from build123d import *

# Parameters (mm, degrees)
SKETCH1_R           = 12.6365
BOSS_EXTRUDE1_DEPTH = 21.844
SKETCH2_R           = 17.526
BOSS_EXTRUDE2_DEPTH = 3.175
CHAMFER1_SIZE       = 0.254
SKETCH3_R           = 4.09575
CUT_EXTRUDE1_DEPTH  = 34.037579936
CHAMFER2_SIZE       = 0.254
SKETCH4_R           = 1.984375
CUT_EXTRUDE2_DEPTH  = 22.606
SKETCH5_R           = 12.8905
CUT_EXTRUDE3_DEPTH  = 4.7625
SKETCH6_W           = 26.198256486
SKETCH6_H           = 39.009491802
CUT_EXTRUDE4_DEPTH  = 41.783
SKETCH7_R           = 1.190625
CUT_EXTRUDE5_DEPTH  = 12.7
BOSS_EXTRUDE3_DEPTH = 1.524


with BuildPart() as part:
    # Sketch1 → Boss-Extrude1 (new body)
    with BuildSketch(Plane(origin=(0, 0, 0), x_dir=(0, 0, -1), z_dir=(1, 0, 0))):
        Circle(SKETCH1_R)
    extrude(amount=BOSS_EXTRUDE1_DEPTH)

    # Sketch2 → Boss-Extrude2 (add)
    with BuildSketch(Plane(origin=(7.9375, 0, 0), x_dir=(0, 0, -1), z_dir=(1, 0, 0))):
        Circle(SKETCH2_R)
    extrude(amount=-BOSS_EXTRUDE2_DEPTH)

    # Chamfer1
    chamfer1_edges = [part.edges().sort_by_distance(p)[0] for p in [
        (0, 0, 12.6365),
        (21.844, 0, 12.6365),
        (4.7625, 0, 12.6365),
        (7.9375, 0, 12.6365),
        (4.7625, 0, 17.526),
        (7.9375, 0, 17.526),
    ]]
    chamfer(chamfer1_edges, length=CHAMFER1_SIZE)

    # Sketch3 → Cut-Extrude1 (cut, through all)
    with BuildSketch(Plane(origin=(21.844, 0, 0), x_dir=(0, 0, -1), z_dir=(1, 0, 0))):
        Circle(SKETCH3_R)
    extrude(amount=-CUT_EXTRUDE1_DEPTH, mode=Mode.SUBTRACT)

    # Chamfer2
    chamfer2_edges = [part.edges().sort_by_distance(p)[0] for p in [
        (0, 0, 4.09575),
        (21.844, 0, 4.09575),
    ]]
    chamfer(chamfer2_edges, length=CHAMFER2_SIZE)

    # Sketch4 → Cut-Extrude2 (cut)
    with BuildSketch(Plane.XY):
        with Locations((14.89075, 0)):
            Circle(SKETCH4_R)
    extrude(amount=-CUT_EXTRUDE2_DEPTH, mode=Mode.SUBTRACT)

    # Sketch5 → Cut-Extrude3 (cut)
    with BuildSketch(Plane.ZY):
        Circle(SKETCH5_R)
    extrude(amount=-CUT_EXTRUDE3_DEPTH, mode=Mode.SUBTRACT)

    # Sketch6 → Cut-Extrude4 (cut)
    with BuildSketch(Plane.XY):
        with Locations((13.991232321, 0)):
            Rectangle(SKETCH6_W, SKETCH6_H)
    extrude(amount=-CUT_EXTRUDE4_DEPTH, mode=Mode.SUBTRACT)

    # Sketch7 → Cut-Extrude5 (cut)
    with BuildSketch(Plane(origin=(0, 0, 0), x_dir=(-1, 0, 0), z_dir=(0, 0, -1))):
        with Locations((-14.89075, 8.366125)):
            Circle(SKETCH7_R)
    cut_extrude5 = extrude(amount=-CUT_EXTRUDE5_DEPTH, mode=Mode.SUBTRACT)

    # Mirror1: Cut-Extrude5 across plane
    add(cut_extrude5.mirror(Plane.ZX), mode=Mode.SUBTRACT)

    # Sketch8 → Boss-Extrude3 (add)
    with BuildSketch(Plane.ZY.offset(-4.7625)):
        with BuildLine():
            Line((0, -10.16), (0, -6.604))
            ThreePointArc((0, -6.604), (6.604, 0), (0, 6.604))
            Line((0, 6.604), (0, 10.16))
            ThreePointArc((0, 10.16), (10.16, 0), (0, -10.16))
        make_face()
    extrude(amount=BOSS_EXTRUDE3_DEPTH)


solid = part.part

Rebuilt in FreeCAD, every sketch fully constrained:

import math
import FreeCAD as App
import Part
import Sketcher

V = App.Vector
Q = App.Units.Quantity


def edges_at(feature, points):
    """Names of the edges that pass closest to the given points."""
    edges = feature.Shape.Edges
    near = lambda p: min(range(len(edges)), key=lambda i: edges[i].distToShape(Part.Vertex(*p))[0])
    return sorted({f"Edge{near(p) + 1}" for p in points})


def add_polygon(sketch, points):
    """Adds a closed chain of lines whose ends are joined by coincident constraints."""
    first, n = sketch.GeometryCount, len(points)
    for a, b in zip(points, points[1:] + points[:1]):
        sketch.addGeometry(Part.LineSegment(App.Vector(*a, 0), App.Vector(*b, 0)), False)
    for i in range(n):
        sketch.addConstraint(Sketcher.Constraint("Coincident", first + i, 2, first + (i + 1) % n, 1))

doc = App.newDocument("Part")
body = doc.addObject("PartDesign::Body", "Body")

# Sketch on YZ plane
sketch1 = doc.addObject("Sketcher::SketchObject", "Sketch")
body.addObject(sketch1)
sketch1.AttachmentSupport = (doc.YZ_Plane, [""])
sketch1.MapMode = "FlatFace"
sketch1.addGeometry(Part.Circle(V(0, 0, 0), V(0, 0, 1), 13), False)
sketch1.addConstraint(Sketcher.Constraint("Coincident", 0, 3, -1, 1))
sketch1.addConstraint(Sketcher.Constraint("Diameter", 0, Q("0.995 in")))
pad1 = doc.addObject("PartDesign::Pad", "Pad")
body.addObject(pad1)
pad1.Profile = sketch1
pad1.Length = Q("0.86 in")

# Sketch on YZ plane
sketch2 = doc.addObject("Sketcher::SketchObject", "Sketch001")
body.addObject(sketch2)
sketch2.AttachmentSupport = (doc.YZ_Plane, [""])
sketch2.MapMode = "FlatFace"
sketch2.AttachmentOffset = App.Placement(V(0, 0, 0.3125 * 25.4), App.Rotation())
sketch2.addGeometry(Part.Circle(V(0, 0, 0), V(0, 0, 1), 18), False)
sketch2.addConstraint(Sketcher.Constraint("Coincident", 0, 3, -1, 1))
sketch2.addConstraint(Sketcher.Constraint("Diameter", 0, Q("1.38 in")))
pad2 = doc.addObject("PartDesign::Pad", "Pad001")
body.addObject(pad2)
pad2.Profile = sketch2
pad2.Length = Q("0.125 in")
pad2.Reversed = True
doc.recompute()

chamfer = doc.addObject("PartDesign::Chamfer", "Chamfer")
body.addObject(chamfer)
chamfer.Base = (pad2, edges_at(pad2, [
    (0, 0, 12.636),
    (21.844, 0, 12.636),
    (4.763, 0, 12.636),
    (7.938, 0, 12.636),
    (4.763, 0, 17.526),
    (7.938, 0, 17.526),
]))
chamfer.Size = Q("0.01 in")

# Sketch on YZ plane
sketch3 = doc.addObject("Sketcher::SketchObject", "Sketch002")
body.addObject(sketch3)
sketch3.AttachmentSupport = (doc.YZ_Plane, [""])
sketch3.MapMode = "FlatFace"
sketch3.AttachmentOffset = App.Placement(V(0, 0, 0.86 * 25.4), App.Rotation())
sketch3.addGeometry(Part.Circle(V(0, 0, 0), V(0, 0, 1), 4.1), False)
sketch3.addConstraint(Sketcher.Constraint("Coincident", 0, 3, -1, 1))
sketch3.addConstraint(Sketcher.Constraint("Diameter", 0, Q("0.3225 in")))
pocket1 = doc.addObject("PartDesign::Pocket", "Pocket")
body.addObject(pocket1)
pocket1.Profile = sketch3
pocket1.Type = "ThroughAll"
doc.recompute()

chamfer2 = doc.addObject("PartDesign::Chamfer", "Chamfer001")
body.addObject(chamfer2)
chamfer2.Base = (pocket1, edges_at(pocket1, [(0, 0, 4.096), (21.844, 0, 4.096)]))
chamfer2.Size = Q("0.01 in")

# Sketch on XY plane
sketch4 = doc.addObject("Sketcher::SketchObject", "Sketch003")
body.addObject(sketch4)
sketch4.AttachmentSupport = (doc.XY_Plane, [""])
sketch4.MapMode = "FlatFace"
sketch4.addGeometry(Part.Circle(V(14.9, 0, 0), V(0, 0, 1), 2), False)
sketch4.addConstraint(Sketcher.Constraint("PointOnObject", 0, 3, -1))
sketch4.addConstraint(Sketcher.Constraint("Diameter", 0, Q("0.15625 in")))
sketch4.addConstraint(Sketcher.Constraint("DistanceX", -1, 1, 0, 3, 14.89075))
pocket2 = doc.addObject("PartDesign::Pocket", "Pocket001")
body.addObject(pocket2)
pocket2.Profile = sketch4
pocket2.Length = Q("0.89 in")

# Sketch on YZ plane
sketch5 = doc.addObject("Sketcher::SketchObject", "Sketch004")
body.addObject(sketch5)
sketch5.AttachmentSupport = (doc.YZ_Plane, [""])
sketch5.MapMode = "FlatFace"
sketch5.addGeometry(Part.Circle(V(0, 0, 0), V(0, 0, 1), 13), False)
sketch5.addConstraint(Sketcher.Constraint("Coincident", 0, 3, -1, 1))
sketch5.addConstraint(Sketcher.Constraint("Diameter", 0, Q("1.015 in")))
pocket3 = doc.addObject("PartDesign::Pocket", "Pocket002")
body.addObject(pocket3)
pocket3.Profile = sketch5
pocket3.Length = Q("0.1875 in")
pocket3.Reversed = True

# Sketch on XY plane
sketch6 = doc.addObject("Sketcher::SketchObject", "Sketch005")
body.addObject(sketch6)
sketch6.AttachmentSupport = (doc.XY_Plane, [""])
sketch6.MapMode = "FlatFace"
add_polygon(sketch6, [(1, 20), (1, -20), (27, -20), (27, 20)])  # lines 0-3
sketch6.addConstraint(Sketcher.Constraint("Vertical", 0))
sketch6.addConstraint(Sketcher.Constraint("Horizontal", 1))
sketch6.addConstraint(Sketcher.Constraint("Vertical", 2))
sketch6.addConstraint(Sketcher.Constraint("Horizontal", 3))
sketch6.addConstraint(Sketcher.Constraint("DistanceY", 0, 2, 0, 1, 39.009492))
sketch6.addConstraint(Sketcher.Constraint("DistanceX", 1, 1, 1, 2, 26.198256))
sketch6.addConstraint(Sketcher.Constraint("DistanceX", -1, 1, 1, 2, 27.090361))
sketch6.addConstraint(Sketcher.Constraint("DistanceY", 0, 2, -1, 1, 19.504746))
pocket4 = doc.addObject("PartDesign::Pocket", "Pocket003")
body.addObject(pocket4)
pocket4.Profile = sketch6
pocket4.Length = Q("1.645 in")

# Sketch on XY plane
sketch7 = doc.addObject("Sketcher::SketchObject", "Sketch006")
body.addObject(sketch7)
sketch7.AttachmentSupport = (doc.XY_Plane, [""])
sketch7.MapMode = "FlatFace"
sketch7.addGeometry(Part.Circle(V(14.9, 8.4, 0), V(0, 0, 1), 1.2), False)
sketch7.addConstraint(Sketcher.Constraint("Diameter", 0, Q("0.09375 in")))
sketch7.addConstraint(Sketcher.Constraint("DistanceX", -1, 1, 0, 3, 14.89075))
sketch7.addConstraint(Sketcher.Constraint("DistanceY", -1, 1, 0, 3, 8.366125))
pocket5 = doc.addObject("PartDesign::Pocket", "Pocket004")
body.addObject(pocket5)
pocket5.Profile = sketch7
pocket5.Length = Q("0.5 in")
pocket5.Reversed = True
doc.recompute()

mirrored = doc.addObject("PartDesign::Mirrored", "Mirrored")
body.addObject(mirrored)
mirrored.Originals = [pocket5]
mirrored.MirrorPlane = (doc.XZ_Plane, [""])
body.Tip = mirrored

# Sketch on YZ plane
sketch8 = doc.addObject("Sketcher::SketchObject", "Sketch007")
body.addObject(sketch8)
sketch8.AttachmentSupport = (doc.YZ_Plane, [""])
sketch8.MapMode = "FlatFace"
sketch8.AttachmentOffset = App.Placement(V(0, 0, 0.1875 * 25.4), App.Rotation())
sketch8.addGeometry(Part.LineSegment(V(-6.6, 0, 0), V(-10.2, 0, 0)), False)
sketch8.addGeometry(Part.ArcOfCircle(Part.Circle(V(0, 0, 0), V(0, 0, 1), 10.2), math.radians(0), math.radians(180)), False)
sketch8.addGeometry(Part.LineSegment(V(10.2, 0, 0), V(6.6, 0, 0)), False)
sketch8.addGeometry(Part.ArcOfCircle(Part.Circle(V(0, 0, 0), V(0, 0, 1), 6.6), math.radians(0), math.radians(180)), False)
sketch8.addConstraint(Sketcher.Constraint("Coincident", 0, 2, 1, 2))
sketch8.addConstraint(Sketcher.Constraint("Coincident", 1, 1, 2, 1))
sketch8.addConstraint(Sketcher.Constraint("Coincident", 2, 2, 3, 1))
sketch8.addConstraint(Sketcher.Constraint("Coincident", 3, 2, 0, 1))
sketch8.addConstraint(Sketcher.Constraint("Horizontal", 0))
sketch8.addConstraint(Sketcher.Constraint("Horizontal", 2))
sketch8.addConstraint(Sketcher.Constraint("Coincident", 1, 3, -1, 1))
sketch8.addConstraint(Sketcher.Constraint("Coincident", 3, 3, -1, 1))
sketch8.addConstraint(Sketcher.Constraint("PointOnObject", 0, 2, -1))
sketch8.addConstraint(Sketcher.Constraint("PointOnObject", 1, 1, -1))
sketch8.addConstraint(Sketcher.Constraint("Radius", 1, Q("0.4 in")))
sketch8.addConstraint(Sketcher.Constraint("Radius", 3, Q("0.26 in")))
pad3 = doc.addObject("PartDesign::Pad", "Pad002")
body.addObject(pad3)
pad3.Profile = sketch8
pad3.Length = Q("0.06 in")
pad3.Reversed = True

doc.recompute()
